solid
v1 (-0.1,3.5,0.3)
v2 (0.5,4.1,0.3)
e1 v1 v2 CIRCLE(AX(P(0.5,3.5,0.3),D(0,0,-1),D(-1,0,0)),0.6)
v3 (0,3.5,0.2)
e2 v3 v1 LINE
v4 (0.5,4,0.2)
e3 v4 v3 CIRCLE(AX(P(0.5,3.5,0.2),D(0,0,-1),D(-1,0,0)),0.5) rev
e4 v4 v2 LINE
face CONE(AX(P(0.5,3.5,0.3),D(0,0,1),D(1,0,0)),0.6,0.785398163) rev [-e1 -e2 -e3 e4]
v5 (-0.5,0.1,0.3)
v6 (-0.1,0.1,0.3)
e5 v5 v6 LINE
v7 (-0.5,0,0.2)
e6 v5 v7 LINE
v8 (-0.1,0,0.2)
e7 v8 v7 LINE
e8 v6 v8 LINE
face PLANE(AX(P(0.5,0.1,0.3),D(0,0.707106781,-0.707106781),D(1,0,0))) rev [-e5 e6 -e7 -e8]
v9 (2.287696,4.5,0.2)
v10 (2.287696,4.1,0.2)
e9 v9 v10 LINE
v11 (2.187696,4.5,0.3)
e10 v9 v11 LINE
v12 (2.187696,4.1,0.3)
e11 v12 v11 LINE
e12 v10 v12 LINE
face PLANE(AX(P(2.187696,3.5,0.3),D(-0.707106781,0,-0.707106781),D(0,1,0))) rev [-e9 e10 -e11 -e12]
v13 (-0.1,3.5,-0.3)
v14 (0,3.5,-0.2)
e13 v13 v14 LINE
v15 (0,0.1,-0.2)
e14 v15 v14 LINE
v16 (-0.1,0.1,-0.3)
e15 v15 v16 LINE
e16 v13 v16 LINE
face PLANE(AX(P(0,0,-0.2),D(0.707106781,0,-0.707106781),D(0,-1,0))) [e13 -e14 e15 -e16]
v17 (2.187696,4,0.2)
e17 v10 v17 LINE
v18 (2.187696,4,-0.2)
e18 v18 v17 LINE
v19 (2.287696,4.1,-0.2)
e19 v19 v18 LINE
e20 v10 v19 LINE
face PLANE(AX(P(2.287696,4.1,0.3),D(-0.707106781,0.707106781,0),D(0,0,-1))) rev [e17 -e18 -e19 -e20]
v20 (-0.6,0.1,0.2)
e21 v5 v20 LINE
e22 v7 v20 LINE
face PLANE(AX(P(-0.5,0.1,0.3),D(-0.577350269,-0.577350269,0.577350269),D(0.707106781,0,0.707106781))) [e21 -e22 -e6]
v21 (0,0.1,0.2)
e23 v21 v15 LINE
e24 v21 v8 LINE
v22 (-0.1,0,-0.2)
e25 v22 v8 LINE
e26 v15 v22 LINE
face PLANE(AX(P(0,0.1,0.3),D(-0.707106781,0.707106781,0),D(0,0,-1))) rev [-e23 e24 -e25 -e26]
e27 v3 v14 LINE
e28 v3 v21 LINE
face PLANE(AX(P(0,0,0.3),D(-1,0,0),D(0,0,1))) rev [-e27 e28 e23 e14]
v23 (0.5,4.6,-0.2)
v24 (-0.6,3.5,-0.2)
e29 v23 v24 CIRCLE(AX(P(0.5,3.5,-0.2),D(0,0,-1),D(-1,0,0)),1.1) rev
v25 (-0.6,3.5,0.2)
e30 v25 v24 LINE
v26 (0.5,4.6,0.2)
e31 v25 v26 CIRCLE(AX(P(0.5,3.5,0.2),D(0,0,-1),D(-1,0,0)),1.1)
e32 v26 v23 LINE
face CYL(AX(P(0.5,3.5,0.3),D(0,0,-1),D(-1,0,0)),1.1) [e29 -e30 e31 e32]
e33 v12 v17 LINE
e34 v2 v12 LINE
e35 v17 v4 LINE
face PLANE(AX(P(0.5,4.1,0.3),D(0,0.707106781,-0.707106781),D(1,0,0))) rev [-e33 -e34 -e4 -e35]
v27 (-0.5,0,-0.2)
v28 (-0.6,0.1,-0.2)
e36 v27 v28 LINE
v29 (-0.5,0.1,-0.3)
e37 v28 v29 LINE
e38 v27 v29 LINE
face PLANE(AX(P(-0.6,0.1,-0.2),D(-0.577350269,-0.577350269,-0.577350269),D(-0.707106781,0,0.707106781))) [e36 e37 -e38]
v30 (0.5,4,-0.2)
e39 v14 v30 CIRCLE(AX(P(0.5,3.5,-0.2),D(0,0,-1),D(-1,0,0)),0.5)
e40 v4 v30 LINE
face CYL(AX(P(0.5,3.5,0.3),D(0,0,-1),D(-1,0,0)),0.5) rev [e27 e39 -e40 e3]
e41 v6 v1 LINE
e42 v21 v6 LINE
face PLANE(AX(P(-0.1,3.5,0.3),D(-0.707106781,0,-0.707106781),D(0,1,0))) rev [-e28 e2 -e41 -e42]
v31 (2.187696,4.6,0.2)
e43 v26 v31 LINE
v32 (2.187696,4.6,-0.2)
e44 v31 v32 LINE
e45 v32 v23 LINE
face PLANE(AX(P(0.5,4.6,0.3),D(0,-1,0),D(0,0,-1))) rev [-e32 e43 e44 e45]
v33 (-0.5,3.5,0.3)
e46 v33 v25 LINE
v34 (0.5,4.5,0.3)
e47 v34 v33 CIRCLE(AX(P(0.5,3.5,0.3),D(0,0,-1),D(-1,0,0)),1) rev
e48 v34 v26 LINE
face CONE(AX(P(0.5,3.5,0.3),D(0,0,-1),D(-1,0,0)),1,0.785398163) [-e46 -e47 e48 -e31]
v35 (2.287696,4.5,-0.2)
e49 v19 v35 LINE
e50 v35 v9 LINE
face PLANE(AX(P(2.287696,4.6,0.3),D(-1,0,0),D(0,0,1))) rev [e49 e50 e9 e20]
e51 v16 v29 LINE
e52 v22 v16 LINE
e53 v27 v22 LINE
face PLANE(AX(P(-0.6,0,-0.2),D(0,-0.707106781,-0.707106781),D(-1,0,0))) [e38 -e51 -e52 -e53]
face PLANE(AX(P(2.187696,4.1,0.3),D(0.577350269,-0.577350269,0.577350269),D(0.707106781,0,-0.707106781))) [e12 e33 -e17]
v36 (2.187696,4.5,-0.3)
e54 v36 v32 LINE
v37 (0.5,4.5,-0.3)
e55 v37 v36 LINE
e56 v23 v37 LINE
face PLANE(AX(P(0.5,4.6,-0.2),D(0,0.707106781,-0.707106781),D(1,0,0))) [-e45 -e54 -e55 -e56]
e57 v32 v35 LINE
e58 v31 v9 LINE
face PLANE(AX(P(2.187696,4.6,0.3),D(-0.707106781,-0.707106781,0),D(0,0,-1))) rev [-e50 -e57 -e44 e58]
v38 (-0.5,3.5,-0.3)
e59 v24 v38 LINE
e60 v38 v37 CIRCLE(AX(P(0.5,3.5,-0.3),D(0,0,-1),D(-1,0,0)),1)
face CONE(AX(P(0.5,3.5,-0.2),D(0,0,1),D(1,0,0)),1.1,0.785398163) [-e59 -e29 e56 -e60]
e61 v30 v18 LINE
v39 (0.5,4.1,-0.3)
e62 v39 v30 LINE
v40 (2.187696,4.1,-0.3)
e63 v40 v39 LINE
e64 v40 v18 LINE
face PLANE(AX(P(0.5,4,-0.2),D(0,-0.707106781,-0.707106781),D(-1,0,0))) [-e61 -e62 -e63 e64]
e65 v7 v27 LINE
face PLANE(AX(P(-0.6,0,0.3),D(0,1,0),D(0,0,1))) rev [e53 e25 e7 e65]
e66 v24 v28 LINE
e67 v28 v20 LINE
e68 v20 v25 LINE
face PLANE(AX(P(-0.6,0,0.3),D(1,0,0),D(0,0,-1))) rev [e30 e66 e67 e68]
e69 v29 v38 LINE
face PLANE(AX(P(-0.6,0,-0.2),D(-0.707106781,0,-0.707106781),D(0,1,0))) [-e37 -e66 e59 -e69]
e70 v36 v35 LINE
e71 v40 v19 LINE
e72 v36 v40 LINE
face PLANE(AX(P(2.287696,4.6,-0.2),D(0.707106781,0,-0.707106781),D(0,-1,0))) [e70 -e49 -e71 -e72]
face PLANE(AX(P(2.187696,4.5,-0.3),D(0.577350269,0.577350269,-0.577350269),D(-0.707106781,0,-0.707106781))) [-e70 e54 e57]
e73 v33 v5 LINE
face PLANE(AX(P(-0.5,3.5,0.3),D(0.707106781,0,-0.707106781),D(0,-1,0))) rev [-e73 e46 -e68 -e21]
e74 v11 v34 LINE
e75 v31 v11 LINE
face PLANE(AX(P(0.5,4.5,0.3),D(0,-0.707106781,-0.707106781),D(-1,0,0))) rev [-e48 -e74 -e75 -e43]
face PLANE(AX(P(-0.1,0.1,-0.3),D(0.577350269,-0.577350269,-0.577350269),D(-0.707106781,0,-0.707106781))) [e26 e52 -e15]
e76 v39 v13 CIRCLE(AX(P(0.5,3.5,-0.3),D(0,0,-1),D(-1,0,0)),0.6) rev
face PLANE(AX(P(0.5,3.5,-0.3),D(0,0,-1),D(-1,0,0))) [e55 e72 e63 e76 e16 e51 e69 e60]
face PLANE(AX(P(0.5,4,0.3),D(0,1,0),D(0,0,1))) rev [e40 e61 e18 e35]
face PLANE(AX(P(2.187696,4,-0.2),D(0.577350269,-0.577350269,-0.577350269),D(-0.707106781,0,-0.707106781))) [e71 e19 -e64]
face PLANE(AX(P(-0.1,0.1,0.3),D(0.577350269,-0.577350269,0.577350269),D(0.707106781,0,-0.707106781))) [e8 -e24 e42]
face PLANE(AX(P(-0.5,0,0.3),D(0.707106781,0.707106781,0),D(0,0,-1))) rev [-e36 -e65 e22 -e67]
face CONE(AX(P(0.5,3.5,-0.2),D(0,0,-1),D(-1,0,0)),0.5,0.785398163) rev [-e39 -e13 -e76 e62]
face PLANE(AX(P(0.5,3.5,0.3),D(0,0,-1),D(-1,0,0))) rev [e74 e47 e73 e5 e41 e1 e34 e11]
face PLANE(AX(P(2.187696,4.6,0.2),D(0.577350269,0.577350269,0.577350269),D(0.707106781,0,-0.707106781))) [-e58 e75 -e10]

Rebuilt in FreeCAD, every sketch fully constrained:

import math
import FreeCAD as App
import Part
import Sketcher
from FreeCAD import Vector
Q = App.Units.Quantity

doc = App.newDocument("Part")
params = doc.addObject("Spreadsheet::Sheet", "Params")
for row, (alias, value) in enumerate([
    ("sketch1_radius", "0.5 mm"),
    ("sketch1_radius2", "1.1 mm"),
    ("sketch1_height", "3.5 mm"),
    ("pad1_length", "0.6 mm"),
    ("chamfer_size", "0.1 mm"),
], start=1):
    params.set(f"A{row}", alias)
    params.set(f"B{row}", "=" + value)
    params.setAlias(f"B{row}", alias)

body = doc.addObject("PartDesign::Body", "Body")

sketch1 = body.newObject("Sketcher::SketchObject", "Sketch")
sketch1.AttachmentSupport = (doc.getObject("XY_Plane"), [""])
sketch1.MapMode = "FlatFace"
sketch1.addGeometry([
    Part.LineSegment(Vector(-0.6, 3.5, 0), Vector(-0.6, 0, 0)),
    Part.LineSegment(Vector(-0.6, 0, 0), Vector(0, 0, 0)),
    Part.LineSegment(Vector(0, 0, 0), Vector(0, 3.5, 0)),
    Part.ArcOfCircle(Part.Circle(Vector(0.5, 3.5, 0), Vector(0, 0, 1), 0.5), math.radians(90), math.radians(180)),
    Part.LineSegment(Vector(0.5, 4, 0), Vector(2.287696, 4, 0)),
    Part.LineSegment(Vector(2.287696, 4, 0), Vector(2.287696, 4.6, 0)),
    Part.LineSegment(Vector(2.287696, 4.6, 0), Vector(0.5, 4.6, 0)),
    Part.ArcOfCircle(Part.Circle(Vector(0.5, 3.5, 0), Vector(0, 0, 1), 1.1), math.radians(90), math.radians(180)),
], False)
sketch1.addConstraint([
    Sketcher.Constraint("Coincident", 0, 2, 1, 1),
    Sketcher.Constraint("Coincident", 1, 2, 2, 1),
    Sketcher.Constraint("Tangent", 2, 2, 3, 2),
    Sketcher.Constraint("Tangent", 3, 1, 4, 1),
    Sketcher.Constraint("Coincident", 4, 2, 5, 1),
    Sketcher.Constraint("Coincident", 5, 2, 6, 1),
    Sketcher.Constraint("Tangent", 6, 2, 7, 1),
    Sketcher.Constraint("Tangent", 7, 2, 0, 1),
    Sketcher.Constraint("Vertical", 0),
    Sketcher.Constraint("Horizontal", 1),
    Sketcher.Constraint("Vertical", 2),
    Sketcher.Constraint("Horizontal", 4),
    Sketcher.Constraint("Vertical", 5),
    Sketcher.Constraint("Horizontal", 6),
    Sketcher.Constraint("Coincident", 1, 2, -1, 1),
    Sketcher.Constraint("Coincident", 7, 3, 3, 3),
    Sketcher.Constraint("Radius", 3, Q("0.5 mm")),
    Sketcher.Constraint("Radius", 7, Q("1.1 mm")),
    Sketcher.Constraint("DistanceY", 0, 2, 0, 1, Q("3.5 mm")),
    Sketcher.Constraint("DistanceX", 4, 1, 4, 2, Q("1.787696 mm")),
])
sketch1.setExpression("Constraints[16]", "Params.sketch1_radius")
sketch1.setExpression("Constraints[17]", "Params.sketch1_radius2")
sketch1.setExpression("Constraints[18]", "Params.sketch1_height")
pad1 = body.newObject("PartDesign::Pad", "Pad")
pad1.Profile = sketch1
pad1.setExpression("Length", "Params.pad1_length")
pad1.Midplane = True
doc.recompute()

chamfer = body.newObject("PartDesign::Chamfer", "Chamfer")
chamfer.Base = (pad1, ["Edge1"])
chamfer.UseAllEdges = True
chamfer.setExpression("Size", "Params.chamfer_size")

doc.recompute()
